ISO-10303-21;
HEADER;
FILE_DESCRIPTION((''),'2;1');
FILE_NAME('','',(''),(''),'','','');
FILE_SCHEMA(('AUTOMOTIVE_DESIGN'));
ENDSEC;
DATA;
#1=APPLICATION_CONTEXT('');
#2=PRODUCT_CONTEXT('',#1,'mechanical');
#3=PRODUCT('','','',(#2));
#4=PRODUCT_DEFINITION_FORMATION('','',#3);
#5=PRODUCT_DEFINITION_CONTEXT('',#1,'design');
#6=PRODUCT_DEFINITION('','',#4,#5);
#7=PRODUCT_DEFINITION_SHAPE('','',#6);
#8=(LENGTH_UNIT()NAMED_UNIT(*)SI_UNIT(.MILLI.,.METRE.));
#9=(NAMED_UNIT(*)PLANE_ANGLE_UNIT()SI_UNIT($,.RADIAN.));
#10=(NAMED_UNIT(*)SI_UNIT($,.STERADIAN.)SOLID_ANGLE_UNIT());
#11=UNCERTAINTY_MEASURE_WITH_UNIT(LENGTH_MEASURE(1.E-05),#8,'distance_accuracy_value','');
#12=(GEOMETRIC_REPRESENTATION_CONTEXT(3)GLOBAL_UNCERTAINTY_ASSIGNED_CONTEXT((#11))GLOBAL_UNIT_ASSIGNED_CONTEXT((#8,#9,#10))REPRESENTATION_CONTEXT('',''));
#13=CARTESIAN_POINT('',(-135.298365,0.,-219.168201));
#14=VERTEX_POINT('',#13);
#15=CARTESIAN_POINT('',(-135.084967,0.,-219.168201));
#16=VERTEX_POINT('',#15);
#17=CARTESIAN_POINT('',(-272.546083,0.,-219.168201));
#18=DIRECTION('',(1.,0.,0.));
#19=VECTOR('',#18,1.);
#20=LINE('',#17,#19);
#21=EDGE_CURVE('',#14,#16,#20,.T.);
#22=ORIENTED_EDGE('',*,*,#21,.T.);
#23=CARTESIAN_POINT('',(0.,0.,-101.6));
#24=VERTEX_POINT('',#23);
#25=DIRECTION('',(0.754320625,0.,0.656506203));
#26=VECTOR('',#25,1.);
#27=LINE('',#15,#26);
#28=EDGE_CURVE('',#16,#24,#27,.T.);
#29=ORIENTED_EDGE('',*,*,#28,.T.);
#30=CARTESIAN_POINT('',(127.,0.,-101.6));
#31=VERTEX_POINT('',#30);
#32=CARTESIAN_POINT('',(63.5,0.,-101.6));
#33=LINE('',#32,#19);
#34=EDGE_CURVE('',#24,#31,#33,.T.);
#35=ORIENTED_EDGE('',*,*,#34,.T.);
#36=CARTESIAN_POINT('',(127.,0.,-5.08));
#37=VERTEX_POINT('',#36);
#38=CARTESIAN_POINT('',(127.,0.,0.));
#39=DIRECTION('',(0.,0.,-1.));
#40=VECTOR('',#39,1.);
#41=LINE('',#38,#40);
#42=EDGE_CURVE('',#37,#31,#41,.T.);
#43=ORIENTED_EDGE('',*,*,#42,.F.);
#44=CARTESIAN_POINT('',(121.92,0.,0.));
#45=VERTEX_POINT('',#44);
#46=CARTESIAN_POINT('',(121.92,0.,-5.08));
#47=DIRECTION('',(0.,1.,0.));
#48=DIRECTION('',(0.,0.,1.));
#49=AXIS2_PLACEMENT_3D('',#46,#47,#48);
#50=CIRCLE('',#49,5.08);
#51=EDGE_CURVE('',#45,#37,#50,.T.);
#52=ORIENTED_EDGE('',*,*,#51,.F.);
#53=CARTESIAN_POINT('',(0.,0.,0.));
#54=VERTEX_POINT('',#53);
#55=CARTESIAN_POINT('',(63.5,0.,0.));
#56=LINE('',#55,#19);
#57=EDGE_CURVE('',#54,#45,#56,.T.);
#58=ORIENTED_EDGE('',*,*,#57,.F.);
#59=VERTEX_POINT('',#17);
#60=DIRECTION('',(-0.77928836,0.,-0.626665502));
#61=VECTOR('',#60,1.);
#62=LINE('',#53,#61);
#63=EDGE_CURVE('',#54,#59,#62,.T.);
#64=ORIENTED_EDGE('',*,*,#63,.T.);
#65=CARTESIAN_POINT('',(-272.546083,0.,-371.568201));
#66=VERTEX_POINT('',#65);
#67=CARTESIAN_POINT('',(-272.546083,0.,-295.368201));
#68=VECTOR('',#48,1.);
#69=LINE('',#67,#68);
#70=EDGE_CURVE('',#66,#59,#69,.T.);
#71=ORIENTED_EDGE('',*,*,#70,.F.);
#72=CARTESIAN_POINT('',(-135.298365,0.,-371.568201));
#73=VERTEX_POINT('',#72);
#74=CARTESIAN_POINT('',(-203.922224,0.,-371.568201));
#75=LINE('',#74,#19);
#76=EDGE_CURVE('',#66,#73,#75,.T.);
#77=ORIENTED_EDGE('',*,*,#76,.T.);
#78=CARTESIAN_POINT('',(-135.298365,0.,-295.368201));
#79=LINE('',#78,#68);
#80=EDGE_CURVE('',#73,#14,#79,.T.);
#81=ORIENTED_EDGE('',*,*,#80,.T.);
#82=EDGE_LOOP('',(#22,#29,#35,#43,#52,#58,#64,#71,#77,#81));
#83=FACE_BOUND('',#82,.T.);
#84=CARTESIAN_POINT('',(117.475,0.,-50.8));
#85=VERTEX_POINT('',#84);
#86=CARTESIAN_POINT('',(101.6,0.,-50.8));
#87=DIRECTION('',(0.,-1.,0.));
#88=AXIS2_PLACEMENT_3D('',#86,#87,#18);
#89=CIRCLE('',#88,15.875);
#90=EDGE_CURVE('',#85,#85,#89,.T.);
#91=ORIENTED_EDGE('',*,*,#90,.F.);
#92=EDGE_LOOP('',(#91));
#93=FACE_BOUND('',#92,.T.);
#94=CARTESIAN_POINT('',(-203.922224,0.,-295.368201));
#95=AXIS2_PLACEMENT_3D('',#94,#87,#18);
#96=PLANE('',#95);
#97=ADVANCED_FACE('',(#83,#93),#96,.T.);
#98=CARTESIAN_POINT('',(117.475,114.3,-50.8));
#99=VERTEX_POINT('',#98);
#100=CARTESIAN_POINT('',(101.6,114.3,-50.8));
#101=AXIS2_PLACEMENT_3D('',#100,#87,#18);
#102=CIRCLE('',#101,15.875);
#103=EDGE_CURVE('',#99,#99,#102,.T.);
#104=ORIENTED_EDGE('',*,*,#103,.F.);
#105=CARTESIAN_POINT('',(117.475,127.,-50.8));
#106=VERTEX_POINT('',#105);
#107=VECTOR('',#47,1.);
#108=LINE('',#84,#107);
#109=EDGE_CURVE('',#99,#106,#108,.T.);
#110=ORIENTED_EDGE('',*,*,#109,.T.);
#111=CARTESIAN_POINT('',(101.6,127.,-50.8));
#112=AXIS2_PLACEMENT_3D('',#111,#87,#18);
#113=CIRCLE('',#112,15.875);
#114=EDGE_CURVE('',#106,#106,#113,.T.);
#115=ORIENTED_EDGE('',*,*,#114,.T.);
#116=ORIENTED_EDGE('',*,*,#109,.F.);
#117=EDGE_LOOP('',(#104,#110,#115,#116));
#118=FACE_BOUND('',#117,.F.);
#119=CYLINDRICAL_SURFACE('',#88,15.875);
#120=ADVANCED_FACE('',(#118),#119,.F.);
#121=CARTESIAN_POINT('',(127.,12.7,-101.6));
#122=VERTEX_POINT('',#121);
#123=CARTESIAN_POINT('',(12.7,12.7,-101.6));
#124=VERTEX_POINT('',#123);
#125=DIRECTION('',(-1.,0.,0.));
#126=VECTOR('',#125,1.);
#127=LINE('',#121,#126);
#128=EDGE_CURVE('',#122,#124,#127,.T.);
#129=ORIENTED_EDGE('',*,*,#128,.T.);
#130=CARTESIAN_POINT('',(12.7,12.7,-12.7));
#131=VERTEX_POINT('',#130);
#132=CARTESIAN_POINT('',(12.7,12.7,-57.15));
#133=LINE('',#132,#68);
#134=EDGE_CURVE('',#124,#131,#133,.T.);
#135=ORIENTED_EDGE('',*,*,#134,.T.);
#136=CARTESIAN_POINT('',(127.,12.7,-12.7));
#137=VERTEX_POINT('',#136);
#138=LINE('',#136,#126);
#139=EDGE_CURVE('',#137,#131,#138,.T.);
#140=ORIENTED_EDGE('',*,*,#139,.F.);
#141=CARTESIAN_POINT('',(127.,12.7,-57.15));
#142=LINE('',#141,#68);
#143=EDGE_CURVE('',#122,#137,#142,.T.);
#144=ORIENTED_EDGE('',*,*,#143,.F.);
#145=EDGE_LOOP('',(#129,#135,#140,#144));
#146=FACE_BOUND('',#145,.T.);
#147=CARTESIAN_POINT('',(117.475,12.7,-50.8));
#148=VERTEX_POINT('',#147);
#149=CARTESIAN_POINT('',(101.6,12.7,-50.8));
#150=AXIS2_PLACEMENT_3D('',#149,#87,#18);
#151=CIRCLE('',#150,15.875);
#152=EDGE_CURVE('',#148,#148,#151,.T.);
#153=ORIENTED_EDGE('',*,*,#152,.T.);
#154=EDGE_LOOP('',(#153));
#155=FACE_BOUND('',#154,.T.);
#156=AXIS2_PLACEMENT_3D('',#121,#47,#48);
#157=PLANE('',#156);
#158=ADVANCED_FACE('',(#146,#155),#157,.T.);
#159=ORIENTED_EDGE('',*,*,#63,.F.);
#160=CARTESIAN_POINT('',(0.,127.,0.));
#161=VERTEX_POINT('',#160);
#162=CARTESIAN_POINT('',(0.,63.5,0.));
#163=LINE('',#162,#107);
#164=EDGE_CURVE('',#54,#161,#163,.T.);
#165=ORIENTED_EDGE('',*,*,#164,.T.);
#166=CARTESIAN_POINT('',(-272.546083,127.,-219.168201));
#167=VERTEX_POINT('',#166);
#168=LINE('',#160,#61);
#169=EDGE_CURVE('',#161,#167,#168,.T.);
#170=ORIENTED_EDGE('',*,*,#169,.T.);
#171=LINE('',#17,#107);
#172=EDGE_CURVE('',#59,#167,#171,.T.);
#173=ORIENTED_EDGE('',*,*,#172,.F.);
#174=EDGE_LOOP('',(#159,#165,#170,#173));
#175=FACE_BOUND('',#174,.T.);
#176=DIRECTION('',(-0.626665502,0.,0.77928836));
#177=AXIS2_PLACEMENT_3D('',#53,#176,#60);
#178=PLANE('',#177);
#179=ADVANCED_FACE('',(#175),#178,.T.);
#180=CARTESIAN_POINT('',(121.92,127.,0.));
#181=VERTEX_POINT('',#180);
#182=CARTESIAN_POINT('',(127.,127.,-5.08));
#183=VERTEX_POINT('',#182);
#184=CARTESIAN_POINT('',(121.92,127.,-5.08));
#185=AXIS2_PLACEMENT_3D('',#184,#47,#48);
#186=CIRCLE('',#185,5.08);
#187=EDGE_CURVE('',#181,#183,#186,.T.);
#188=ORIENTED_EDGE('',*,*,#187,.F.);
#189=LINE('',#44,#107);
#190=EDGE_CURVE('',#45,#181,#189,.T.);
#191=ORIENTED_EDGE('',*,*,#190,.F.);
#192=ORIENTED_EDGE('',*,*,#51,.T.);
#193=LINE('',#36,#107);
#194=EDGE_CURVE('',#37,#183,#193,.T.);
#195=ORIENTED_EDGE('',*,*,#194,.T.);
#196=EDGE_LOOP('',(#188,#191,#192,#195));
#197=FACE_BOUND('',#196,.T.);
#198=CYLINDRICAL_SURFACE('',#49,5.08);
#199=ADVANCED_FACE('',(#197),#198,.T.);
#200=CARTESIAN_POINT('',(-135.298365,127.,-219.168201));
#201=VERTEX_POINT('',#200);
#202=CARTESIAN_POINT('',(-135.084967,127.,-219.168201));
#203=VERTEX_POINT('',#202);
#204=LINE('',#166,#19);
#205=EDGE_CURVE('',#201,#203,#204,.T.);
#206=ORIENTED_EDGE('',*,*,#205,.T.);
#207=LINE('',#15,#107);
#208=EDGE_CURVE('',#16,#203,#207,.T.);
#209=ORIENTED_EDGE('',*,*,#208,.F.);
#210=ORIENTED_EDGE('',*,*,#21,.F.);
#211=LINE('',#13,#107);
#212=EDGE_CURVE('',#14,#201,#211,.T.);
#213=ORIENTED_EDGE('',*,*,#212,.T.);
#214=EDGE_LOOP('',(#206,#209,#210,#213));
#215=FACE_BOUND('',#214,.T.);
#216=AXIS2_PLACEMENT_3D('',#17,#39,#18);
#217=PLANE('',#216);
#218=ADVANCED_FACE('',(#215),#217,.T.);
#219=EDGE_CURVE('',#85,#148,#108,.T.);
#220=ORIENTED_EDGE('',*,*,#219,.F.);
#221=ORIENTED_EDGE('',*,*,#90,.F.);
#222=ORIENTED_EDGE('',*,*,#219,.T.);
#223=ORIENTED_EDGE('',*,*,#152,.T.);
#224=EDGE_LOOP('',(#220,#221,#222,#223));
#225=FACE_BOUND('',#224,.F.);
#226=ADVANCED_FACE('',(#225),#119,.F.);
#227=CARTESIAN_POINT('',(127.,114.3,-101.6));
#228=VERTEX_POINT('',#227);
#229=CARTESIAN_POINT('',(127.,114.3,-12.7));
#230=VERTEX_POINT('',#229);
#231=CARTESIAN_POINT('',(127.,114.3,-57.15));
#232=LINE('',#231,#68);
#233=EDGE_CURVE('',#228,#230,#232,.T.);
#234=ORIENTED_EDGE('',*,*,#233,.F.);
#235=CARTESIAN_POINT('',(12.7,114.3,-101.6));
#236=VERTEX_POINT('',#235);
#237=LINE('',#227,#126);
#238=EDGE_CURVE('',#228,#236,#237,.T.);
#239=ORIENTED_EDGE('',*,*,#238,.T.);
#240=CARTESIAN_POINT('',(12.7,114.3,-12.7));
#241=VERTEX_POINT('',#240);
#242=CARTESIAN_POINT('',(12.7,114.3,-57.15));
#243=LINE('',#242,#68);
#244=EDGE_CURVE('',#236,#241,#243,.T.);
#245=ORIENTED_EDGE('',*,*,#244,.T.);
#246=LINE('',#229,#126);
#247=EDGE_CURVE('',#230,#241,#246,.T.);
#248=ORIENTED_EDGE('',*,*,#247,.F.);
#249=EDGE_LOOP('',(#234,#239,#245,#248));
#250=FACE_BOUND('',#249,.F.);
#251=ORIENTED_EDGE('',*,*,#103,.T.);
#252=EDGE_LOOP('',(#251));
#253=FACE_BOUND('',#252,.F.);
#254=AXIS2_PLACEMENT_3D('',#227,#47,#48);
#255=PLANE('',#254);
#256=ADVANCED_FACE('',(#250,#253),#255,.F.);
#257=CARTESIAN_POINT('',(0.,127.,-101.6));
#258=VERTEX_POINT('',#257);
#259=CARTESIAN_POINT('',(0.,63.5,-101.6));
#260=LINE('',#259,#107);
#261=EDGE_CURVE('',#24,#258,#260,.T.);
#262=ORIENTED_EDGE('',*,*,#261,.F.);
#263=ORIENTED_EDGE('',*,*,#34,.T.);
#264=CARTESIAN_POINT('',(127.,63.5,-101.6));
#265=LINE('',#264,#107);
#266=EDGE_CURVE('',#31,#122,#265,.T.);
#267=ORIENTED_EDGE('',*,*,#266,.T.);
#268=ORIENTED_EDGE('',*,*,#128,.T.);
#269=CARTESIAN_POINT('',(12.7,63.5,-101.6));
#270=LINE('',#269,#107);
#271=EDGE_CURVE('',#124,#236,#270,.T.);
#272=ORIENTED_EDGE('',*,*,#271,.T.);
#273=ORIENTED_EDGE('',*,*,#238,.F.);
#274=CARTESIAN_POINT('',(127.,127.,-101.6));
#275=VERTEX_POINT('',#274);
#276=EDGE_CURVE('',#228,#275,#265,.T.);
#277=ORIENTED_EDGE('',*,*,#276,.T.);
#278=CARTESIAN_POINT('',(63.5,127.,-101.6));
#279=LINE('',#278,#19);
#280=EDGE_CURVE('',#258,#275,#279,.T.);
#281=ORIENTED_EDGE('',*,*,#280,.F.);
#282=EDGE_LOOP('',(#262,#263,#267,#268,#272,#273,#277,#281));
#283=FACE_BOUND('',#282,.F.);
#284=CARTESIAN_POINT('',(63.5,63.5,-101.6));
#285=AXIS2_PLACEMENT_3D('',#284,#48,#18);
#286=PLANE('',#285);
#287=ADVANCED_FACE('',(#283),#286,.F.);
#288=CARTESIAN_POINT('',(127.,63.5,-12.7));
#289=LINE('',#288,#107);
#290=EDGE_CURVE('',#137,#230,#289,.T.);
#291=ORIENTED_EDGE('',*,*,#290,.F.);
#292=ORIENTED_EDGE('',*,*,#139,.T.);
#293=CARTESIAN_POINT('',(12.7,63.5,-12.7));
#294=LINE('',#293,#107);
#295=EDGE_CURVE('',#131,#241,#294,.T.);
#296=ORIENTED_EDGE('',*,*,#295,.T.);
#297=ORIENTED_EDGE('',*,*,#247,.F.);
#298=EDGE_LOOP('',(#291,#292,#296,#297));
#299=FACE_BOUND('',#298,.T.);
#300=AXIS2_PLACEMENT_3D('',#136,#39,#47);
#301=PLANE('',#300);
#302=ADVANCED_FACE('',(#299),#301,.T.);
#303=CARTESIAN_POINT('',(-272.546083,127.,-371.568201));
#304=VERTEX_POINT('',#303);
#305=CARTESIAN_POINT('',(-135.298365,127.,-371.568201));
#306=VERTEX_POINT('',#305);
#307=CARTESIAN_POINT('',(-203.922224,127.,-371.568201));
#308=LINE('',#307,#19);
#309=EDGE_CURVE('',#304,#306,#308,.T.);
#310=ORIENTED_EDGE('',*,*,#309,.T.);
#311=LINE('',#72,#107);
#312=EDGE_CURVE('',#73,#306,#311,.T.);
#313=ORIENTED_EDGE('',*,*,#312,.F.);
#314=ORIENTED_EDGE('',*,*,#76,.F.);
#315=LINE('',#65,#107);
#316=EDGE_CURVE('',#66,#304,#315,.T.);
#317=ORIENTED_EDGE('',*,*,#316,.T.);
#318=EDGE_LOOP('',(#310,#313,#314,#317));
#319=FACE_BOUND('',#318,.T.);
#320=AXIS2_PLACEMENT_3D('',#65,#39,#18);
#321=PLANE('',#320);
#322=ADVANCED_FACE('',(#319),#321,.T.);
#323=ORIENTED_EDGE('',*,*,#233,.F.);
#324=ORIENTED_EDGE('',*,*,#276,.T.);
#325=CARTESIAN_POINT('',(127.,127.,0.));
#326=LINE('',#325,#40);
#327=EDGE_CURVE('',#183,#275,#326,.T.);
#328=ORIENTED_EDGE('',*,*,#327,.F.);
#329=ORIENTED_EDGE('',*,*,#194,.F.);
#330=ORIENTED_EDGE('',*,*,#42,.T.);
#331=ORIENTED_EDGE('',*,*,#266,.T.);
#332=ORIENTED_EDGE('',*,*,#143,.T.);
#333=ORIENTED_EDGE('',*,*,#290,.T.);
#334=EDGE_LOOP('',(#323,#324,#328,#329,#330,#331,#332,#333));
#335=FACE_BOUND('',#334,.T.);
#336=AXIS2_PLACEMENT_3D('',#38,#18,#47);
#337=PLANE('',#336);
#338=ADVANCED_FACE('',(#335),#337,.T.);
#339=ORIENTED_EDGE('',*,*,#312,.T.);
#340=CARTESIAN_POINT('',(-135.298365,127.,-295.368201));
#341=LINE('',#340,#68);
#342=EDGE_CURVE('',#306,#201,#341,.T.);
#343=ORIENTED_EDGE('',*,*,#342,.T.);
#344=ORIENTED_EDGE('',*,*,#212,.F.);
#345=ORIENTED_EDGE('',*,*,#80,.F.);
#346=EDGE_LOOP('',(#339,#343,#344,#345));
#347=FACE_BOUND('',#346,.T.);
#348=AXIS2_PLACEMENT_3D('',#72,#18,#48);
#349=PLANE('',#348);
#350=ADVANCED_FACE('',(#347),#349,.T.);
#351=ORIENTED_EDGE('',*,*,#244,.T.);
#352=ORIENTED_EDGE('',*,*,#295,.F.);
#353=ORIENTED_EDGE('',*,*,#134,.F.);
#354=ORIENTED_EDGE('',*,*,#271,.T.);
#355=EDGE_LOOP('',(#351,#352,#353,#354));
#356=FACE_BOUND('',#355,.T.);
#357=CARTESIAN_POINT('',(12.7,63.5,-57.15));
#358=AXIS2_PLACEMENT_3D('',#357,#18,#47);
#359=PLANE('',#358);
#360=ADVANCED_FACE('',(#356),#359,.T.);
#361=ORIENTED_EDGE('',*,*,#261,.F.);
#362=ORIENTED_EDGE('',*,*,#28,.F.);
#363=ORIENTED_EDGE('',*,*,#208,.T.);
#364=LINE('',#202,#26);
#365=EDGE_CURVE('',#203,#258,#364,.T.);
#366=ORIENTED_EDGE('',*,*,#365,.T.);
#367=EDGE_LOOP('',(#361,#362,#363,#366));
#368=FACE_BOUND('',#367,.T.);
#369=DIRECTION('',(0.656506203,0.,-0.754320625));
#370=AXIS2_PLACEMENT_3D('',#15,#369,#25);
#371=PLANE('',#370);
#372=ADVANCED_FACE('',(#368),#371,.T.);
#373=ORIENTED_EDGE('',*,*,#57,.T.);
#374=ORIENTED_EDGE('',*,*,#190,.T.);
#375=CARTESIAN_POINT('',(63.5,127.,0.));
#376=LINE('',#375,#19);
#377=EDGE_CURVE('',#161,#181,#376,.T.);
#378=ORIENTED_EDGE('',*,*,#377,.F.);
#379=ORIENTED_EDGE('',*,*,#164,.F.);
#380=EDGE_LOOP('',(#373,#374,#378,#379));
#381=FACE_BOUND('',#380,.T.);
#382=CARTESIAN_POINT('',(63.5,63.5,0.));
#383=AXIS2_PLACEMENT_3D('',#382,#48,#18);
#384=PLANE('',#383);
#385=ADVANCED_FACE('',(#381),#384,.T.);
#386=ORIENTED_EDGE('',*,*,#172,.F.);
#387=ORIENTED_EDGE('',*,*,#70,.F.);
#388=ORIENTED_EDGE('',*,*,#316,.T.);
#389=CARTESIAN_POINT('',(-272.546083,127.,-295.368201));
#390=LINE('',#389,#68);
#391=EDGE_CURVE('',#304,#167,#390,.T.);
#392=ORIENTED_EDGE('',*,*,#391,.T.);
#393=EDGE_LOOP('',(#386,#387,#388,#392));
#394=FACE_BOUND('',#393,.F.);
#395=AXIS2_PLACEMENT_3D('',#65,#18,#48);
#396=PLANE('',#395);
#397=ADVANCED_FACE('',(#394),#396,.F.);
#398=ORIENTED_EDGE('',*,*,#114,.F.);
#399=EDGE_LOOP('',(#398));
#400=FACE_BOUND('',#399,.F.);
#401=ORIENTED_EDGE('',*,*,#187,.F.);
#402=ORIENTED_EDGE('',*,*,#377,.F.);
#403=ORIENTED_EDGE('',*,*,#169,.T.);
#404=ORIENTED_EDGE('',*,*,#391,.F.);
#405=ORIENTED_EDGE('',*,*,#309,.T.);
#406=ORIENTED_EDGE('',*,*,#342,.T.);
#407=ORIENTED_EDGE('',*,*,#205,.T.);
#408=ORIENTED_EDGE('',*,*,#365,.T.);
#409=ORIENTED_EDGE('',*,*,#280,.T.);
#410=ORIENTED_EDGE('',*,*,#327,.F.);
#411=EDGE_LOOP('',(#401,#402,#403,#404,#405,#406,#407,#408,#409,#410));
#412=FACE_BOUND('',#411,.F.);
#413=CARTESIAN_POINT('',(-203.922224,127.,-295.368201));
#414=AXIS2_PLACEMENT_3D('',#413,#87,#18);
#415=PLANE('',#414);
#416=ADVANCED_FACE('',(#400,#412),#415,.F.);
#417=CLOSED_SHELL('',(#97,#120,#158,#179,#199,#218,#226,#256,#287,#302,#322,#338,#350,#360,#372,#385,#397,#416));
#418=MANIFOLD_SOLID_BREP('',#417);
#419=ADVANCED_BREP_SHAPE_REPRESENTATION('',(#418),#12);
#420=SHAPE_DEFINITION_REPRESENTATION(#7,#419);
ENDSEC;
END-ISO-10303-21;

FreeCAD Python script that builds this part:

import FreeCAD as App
import Part
import Sketcher
from FreeCAD import Vector
Q = App.Units.Quantity


def edges_at(feature, points):
    """Names of the edges that pass closest to the given points."""
    edges = feature.Shape.Edges
    near = lambda p: min(range(len(edges)), key=lambda i: edges[i].distToShape(Part.Vertex(*p))[0])
    return sorted({f"Edge{near(p) + 1}" for p in points})


def add_polygon(sketch, points):
    """Adds a closed chain of lines whose ends are joined by coincident constraints."""
    first, n = sketch.GeometryCount, len(points)
    for a, b in zip(points, points[1:] + points[:1]):
        sketch.addGeometry(Part.LineSegment(App.Vector(*a, 0), App.Vector(*b, 0)), False)
    for i in range(n):
        sketch.addConstraint(Sketcher.Constraint("Coincident", first + i, 2, first + (i + 1) % n, 1))

doc = App.newDocument("Part")
body = doc.addObject("PartDesign::Body", "Body")

# Sketch on XY plane
sketch1 = body.newObject("Sketcher::SketchObject", "Sketch")
sketch1.AttachmentSupport = (doc.getObject("XY_Plane"), [""])
sketch1.MapMode = "FlatFace"
add_polygon(sketch1, [(0, 127), (0, 0), (127, 0), (127, 127)])  # lines 0-3
sketch1.addConstraint([
    Sketcher.Constraint("Vertical", 0),
    Sketcher.Constraint("Horizontal", 1),
    Sketcher.Constraint("Vertical", 2),
    Sketcher.Constraint("Horizontal", 3),
    Sketcher.Constraint("Coincident", 0, 2, -1, 1),
    Sketcher.Constraint("Equal", 3, 0),
    Sketcher.Constraint("DistanceX", 1, 1, 1, 2, Q("5 in")),
])
pad1 = body.newObject("PartDesign::Pad", "Pad")
pad1.Profile = sketch1
pad1.Length = Q("4 in")
pad1.Reversed = True

# Sketch on YZ plane
sketch2 = body.newObject("Sketcher::SketchObject", "Sketch001")
sketch2.AttachmentSupport = (doc.getObject("YZ_Plane"), [""])
sketch2.MapMode = "FlatFace"
sketch2.AttachmentOffset = App.Placement(Vector(0, 0, 5 * 25.4), App.Rotation())
add_polygon(sketch2, [(13, -13), (13, -102), (114, -102), (114, -13)])  # lines 0-3
sketch2.addConstraint([
    Sketcher.Constraint("Vertical", 0),
    Sketcher.Constraint("Horizontal", 1),
    Sketcher.Constraint("Vertical", 2),
    Sketcher.Constraint("Horizontal", 3),
    Sketcher.Constraint("DistanceX", 1, 1, 1, 2, Q("4 in")),
    Sketcher.Constraint("DistanceY", 0, 2, 0, 1, Q("3.5 in")),
    Sketcher.Constraint("DistanceY", 0, 2, -1, 1, Q("4 in")),
    Sketcher.Constraint("DistanceX", -1, 1, 0, 2, Q("0.5 in")),
])
pocket1 = body.newObject("PartDesign::Pocket", "Pocket")
pocket1.Profile = sketch2
pocket1.Length = Q("4.5 in")

# Sketch on XZ plane
sketch3 = body.newObject("Sketcher::SketchObject", "Sketch002")
sketch3.AttachmentSupport = (doc.getObject("XZ_Plane"), [""])
sketch3.MapMode = "FlatFace"
sketch3.addGeometry(Part.Circle(Vector(102, -51, 0), Vector(0, 0, 1), 16), False)
sketch3.addConstraint([
    Sketcher.Constraint("Diameter", 0, Q("1.25 in")),
    Sketcher.Constraint("DistanceX", -1, 1, 0, 3, Q("4 in")),
    Sketcher.Constraint("DistanceY", 0, 3, -1, 1, Q("2 in")),
])
pocket2 = body.newObject("PartDesign::Pocket", "Pocket001")
pocket2.Profile = sketch3
pocket2.Type = "ThroughAll"
doc.recompute()

fillet = body.newObject("PartDesign::Fillet", "Fillet")
fillet.Base = (pocket2, edges_at(pocket2, [(127, 63.5, 0)]))
fillet.Radius = Q("0.2 in")

# Sketch on XZ plane
sketch4 = body.newObject("Sketcher::SketchObject", "Sketch003")
sketch4.AttachmentSupport = (doc.getObject("XZ_Plane"), [""])
sketch4.MapMode = "FlatFace"
add_polygon(sketch4, [(0, -102), (0, 0), (-273, -219), (-135, -219)])  # lines 0-3
sketch4.addConstraint([
    Sketcher.Constraint("Vertical", 0),
    Sketcher.Constraint("Horizontal", 2),
    Sketcher.Constraint("Coincident", 0, 2, -1, 1),
    Sketcher.Constraint("DistanceY", 0, 1, 0, 2, Q("4 in")),
    Sketcher.Constraint("DistanceY", 1, 2, -1, 1, 219.168201),
    Sketcher.Constraint("Distance", 1, 349.737141),
    Sketcher.Constraint("Distance", 3, 179.08163),
])
pad2 = body.newObject("PartDesign::Pad", "Pad001")
pad2.Profile = sketch4
pad2.Length = Q("5 in")
pad2.Reversed = True

# Sketch on XZ plane
sketch5 = body.newObject("Sketcher::SketchObject", "Sketch004")
sketch5.AttachmentSupport = (doc.getObject("XZ_Plane"), [""])
sketch5.MapMode = "FlatFace"
add_polygon(sketch5, [(-273, -219), (-273, -372), (-135, -372), (-135, -219)])  # lines 0-3
sketch5.addConstraint([
    Sketcher.Constraint("Vertical", 0),
    Sketcher.Constraint("Horizontal", 1),
    Sketcher.Constraint("Vertical", 2),
    Sketcher.Constraint("Horizontal", 3),
    Sketcher.Constraint("DistanceY", 0, 2, 0, 1, Q("6 in")),
    Sketcher.Constraint("DistanceX", 1, 1, 1, 2, 137.247718),
    Sketcher.Constraint("DistanceY", 0, 2, -1, 1, 371.568201),
    Sketcher.Constraint("DistanceX", 0, 2, -1, 1, 272.546083),
])
pad3 = body.newObject("PartDesign::Pad", "Pad002")
pad3.Profile = sketch5
pad3.Length = Q("5 in")
pad3.Reversed = True

doc.recompute()
